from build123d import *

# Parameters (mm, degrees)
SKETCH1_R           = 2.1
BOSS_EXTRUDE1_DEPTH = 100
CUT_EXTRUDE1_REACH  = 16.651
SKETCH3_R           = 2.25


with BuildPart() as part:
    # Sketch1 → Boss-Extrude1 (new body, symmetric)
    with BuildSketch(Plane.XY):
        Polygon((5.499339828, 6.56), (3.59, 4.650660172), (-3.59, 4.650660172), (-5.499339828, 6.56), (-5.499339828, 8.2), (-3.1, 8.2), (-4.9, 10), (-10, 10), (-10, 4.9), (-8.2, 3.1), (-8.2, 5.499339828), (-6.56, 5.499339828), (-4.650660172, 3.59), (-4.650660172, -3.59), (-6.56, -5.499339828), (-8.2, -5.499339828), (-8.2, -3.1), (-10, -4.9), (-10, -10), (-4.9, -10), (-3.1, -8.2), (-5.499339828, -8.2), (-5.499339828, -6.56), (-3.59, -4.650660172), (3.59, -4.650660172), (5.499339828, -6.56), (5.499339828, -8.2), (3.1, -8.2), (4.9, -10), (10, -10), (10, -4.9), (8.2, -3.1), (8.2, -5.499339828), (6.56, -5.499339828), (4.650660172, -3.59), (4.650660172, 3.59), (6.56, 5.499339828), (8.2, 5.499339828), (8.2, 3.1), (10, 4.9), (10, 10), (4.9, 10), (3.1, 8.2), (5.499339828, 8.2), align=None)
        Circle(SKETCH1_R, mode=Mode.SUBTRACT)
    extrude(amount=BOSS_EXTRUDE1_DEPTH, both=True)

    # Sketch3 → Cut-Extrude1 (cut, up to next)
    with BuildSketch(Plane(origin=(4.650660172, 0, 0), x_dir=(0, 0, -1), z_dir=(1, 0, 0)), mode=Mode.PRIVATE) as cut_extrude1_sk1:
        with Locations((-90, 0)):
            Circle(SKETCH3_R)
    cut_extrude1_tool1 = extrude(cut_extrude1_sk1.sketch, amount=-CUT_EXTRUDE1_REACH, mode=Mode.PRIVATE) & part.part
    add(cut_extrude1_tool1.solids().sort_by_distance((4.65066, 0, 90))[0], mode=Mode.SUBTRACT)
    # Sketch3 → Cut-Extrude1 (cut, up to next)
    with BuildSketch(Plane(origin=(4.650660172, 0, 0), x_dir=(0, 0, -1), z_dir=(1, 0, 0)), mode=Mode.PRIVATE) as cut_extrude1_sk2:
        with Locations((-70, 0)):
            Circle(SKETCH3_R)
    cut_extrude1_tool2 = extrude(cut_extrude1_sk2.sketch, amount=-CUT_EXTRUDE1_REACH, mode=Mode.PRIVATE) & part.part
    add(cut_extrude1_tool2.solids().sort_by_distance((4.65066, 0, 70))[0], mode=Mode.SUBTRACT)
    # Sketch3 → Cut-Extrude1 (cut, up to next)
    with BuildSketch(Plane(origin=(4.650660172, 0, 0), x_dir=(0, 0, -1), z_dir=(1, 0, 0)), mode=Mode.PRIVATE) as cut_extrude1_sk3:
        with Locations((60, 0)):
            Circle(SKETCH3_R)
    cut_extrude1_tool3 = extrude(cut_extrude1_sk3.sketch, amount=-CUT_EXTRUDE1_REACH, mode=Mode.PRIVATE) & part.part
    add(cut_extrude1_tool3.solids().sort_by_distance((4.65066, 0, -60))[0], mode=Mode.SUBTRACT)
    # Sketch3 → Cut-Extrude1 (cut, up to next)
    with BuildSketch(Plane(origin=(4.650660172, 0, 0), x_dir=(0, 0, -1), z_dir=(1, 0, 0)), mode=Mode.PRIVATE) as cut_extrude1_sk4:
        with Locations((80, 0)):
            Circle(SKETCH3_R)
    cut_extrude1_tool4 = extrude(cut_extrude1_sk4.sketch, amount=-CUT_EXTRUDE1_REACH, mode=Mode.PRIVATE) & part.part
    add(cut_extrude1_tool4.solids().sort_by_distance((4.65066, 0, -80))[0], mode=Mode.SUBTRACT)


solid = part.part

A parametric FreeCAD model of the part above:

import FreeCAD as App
import Part
import Sketcher
Q = App.Units.Quantity

doc = App.newDocument("Part")
body = doc.addObject("PartDesign::Body", "Body")

# Sketch on XY plane
sketch1 = doc.addObject("Sketcher::SketchObject", "Sketch")
body.addObject(sketch1)
sketch1.AttachmentSupport = (doc.XY_Plane, [""])
sketch1.MapMode = "FlatFace"
sketch1.addGeometry([
    Part.LineSegment(App.Vector(5.5, 6.6, 0), App.Vector(3.6, 4.7, 0)),  # 0
    Part.LineSegment(App.Vector(3.6, 4.7, 0), App.Vector(-3.6, 4.7, 0)),  # 1
    Part.LineSegment(App.Vector(-3.6, 4.7, 0), App.Vector(-5.5, 6.6, 0)),  # 2
    Part.LineSegment(App.Vector(-5.5, 6.6, 0), App.Vector(-5.5, 8.2, 0)),  # 3
    Part.LineSegment(App.Vector(-5.5, 8.2, 0), App.Vector(-3.1, 8.2, 0)),  # 4
    Part.LineSegment(App.Vector(-3.1, 8.2, 0), App.Vector(-4.9, 10, 0)),  # 5
    Part.LineSegment(App.Vector(-4.9, 10, 0), App.Vector(-10, 10, 0)),  # 6
    Part.LineSegment(App.Vector(-10, 10, 0), App.Vector(-10, 4.9, 0)),  # 7
    Part.LineSegment(App.Vector(-10, 4.9, 0), App.Vector(-8.2, 3.1, 0)),  # 8
    Part.LineSegment(App.Vector(-8.2, 3.1, 0), App.Vector(-8.2, 5.5, 0)),  # 9
    Part.LineSegment(App.Vector(-8.2, 5.5, 0), App.Vector(-6.6, 5.5, 0)),  # 10
    Part.LineSegment(App.Vector(-6.6, 5.5, 0), App.Vector(-4.7, 3.6, 0)),  # 11
    Part.LineSegment(App.Vector(-4.7, 3.6, 0), App.Vector(-4.7, -3.6, 0)),  # 12
    Part.LineSegment(App.Vector(-4.7, -3.6, 0), App.Vector(-6.6, -5.5, 0)),  # 13
    Part.LineSegment(App.Vector(-6.6, -5.5, 0), App.Vector(-8.2, -5.5, 0)),  # 14
    Part.LineSegment(App.Vector(-8.2, -5.5, 0), App.Vector(-8.2, -3.1, 0)),  # 15
    Part.LineSegment(App.Vector(-8.2, -3.1, 0), App.Vector(-10, -4.9, 0)),  # 16
    Part.LineSegment(App.Vector(-10, -4.9, 0), App.Vector(-10, -10, 0)),  # 17
    Part.LineSegment(App.Vector(-10, -10, 0), App.Vector(-4.9, -10, 0)),  # 18
    Part.LineSegment(App.Vector(-4.9, -10, 0), App.Vector(-3.1, -8.2, 0)),  # 19
    Part.LineSegment(App.Vector(-3.1, -8.2, 0), App.Vector(-5.5, -8.2, 0)),  # 20
    Part.LineSegment(App.Vector(-5.5, -8.2, 0), App.Vector(-5.5, -6.6, 0)),  # 21
    Part.LineSegment(App.Vector(-5.5, -6.6, 0), App.Vector(-3.6, -4.7, 0)),  # 22
    Part.LineSegment(App.Vector(-3.6, -4.7, 0), App.Vector(3.6, -4.7, 0)),  # 23
    Part.LineSegment(App.Vector(3.6, -4.7, 0), App.Vector(5.5, -6.6, 0)),  # 24
    Part.LineSegment(App.Vector(5.5, -6.6, 0), App.Vector(5.5, -8.2, 0)),  # 25
    Part.LineSegment(App.Vector(5.5, -8.2, 0), App.Vector(3.1, -8.2, 0)),  # 26
    Part.LineSegment(App.Vector(3.1, -8.2, 0), App.Vector(4.9, -10, 0)),  # 27
    Part.LineSegment(App.Vector(4.9, -10, 0), App.Vector(10, -10, 0)),  # 28
    Part.LineSegment(App.Vector(10, -10, 0), App.Vector(10, -4.9, 0)),  # 29
    Part.LineSegment(App.Vector(10, -4.9, 0), App.Vector(8.2, -3.1, 0)),  # 30
    Part.LineSegment(App.Vector(8.2, -3.1, 0), App.Vector(8.2, -5.5, 0)),  # 31
    Part.LineSegment(App.Vector(8.2, -5.5, 0), App.Vector(6.6, -5.5, 0)),  # 32
    Part.LineSegment(App.Vector(6.6, -5.5, 0), App.Vector(4.7, -3.6, 0)),  # 33
    Part.LineSegment(App.Vector(4.7, -3.6, 0), App.Vector(4.7, 3.6, 0)),  # 34
    Part.LineSegment(App.Vector(4.7, 3.6, 0), App.Vector(6.6, 5.5, 0)),  # 35
    Part.LineSegment(App.Vector(6.6, 5.5, 0), App.Vector(8.2, 5.5, 0)),  # 36
    Part.LineSegment(App.Vector(8.2, 5.5, 0), App.Vector(8.2, 3.1, 0)),  # 37
    Part.LineSegment(App.Vector(8.2, 3.1, 0), App.Vector(10, 4.9, 0)),  # 38
    Part.LineSegment(App.Vector(10, 4.9, 0), App.Vector(10, 10, 0)),  # 39
    Part.LineSegment(App.Vector(10, 10, 0), App.Vector(4.9, 10, 0)),  # 40
    Part.LineSegment(App.Vector(4.9, 10, 0), App.Vector(3.1, 8.2, 0)),  # 41
    Part.LineSegment(App.Vector(3.1, 8.2, 0), App.Vector(5.5, 8.2, 0)),  # 42
    Part.LineSegment(App.Vector(5.5, 8.2, 0), App.Vector(5.5, 6.6, 0)),  # 43
    Part.Circle(App.Vector(0, 0, 0), App.Vector(0, 0, 1), 2.1),  # 44
], False)
sketch1.addConstraint([
    Sketcher.Constraint("Coincident", 0, 2, 1, 1),
    Sketcher.Constraint("Coincident", 1, 2, 2, 1),
    Sketcher.Constraint("Coincident", 2, 2, 3, 1),
    Sketcher.Constraint("Coincident", 3, 2, 4, 1),
    Sketcher.Constraint("Coincident", 4, 2, 5, 1),
    Sketcher.Constraint("Coincident", 5, 2, 6, 1),
    Sketcher.Constraint("Coincident", 6, 2, 7, 1),
    Sketcher.Constraint("Coincident", 7, 2, 8, 1),
    Sketcher.Constraint("Coincident", 8, 2, 9, 1),
    Sketcher.Constraint("Coincident", 9, 2, 10, 1),
    Sketcher.Constraint("Coincident", 10, 2, 11, 1),
    Sketcher.Constraint("Coincident", 11, 2, 12, 1),
    Sketcher.Constraint("Coincident", 12, 2, 13, 1),
    Sketcher.Constraint("Coincident", 13, 2, 14, 1),
    Sketcher.Constraint("Coincident", 14, 2, 15, 1),
    Sketcher.Constraint("Coincident", 15, 2, 16, 1),
    Sketcher.Constraint("Coincident", 16, 2, 17, 1),
    Sketcher.Constraint("Coincident", 17, 2, 18, 1),
    Sketcher.Constraint("Coincident", 18, 2, 19, 1),
    Sketcher.Constraint("Coincident", 19, 2, 20, 1),
    Sketcher.Constraint("Coincident", 20, 2, 21, 1),
    Sketcher.Constraint("Coincident", 21, 2, 22, 1),
    Sketcher.Constraint("Coincident", 22, 2, 23, 1),
    Sketcher.Constraint("Coincident", 23, 2, 24, 1),
    Sketcher.Constraint("Coincident", 24, 2, 25, 1),
    Sketcher.Constraint("Coincident", 25, 2, 26, 1),
    Sketcher.Constraint("Coincident", 26, 2, 27, 1),
    Sketcher.Constraint("Coincident", 27, 2, 28, 1),
    Sketcher.Constraint("Coincident", 28, 2, 29, 1),
    Sketcher.Constraint("Coincident", 29, 2, 30, 1),
    Sketcher.Constraint("Coincident", 30, 2, 31, 1),
    Sketcher.Constraint("Coincident", 31, 2, 32, 1),
    Sketcher.Constraint("Coincident", 32, 2, 33, 1),
    Sketcher.Constraint("Coincident", 33, 2, 34, 1),
    Sketcher.Constraint("Coincident", 34, 2, 35, 1),
    Sketcher.Constraint("Coincident", 35, 2, 36, 1),
    Sketcher.Constraint("Coincident", 36, 2, 37, 1),
    Sketcher.Constraint("Coincident", 37, 2, 38, 1),
    Sketcher.Constraint("Coincident", 38, 2, 39, 1),
    Sketcher.Constraint("Coincident", 39, 2, 40, 1),
    Sketcher.Constraint("Coincident", 40, 2, 41, 1),
    Sketcher.Constraint("Coincident", 41, 2, 42, 1),
    Sketcher.Constraint("Coincident", 42, 2, 43, 1),
    Sketcher.Constraint("Coincident", 43, 2, 0, 1),
    Sketcher.Constraint("Horizontal", 1),
    Sketcher.Constraint("Vertical", 3),
    Sketcher.Constraint("Horizontal", 4),
    Sketcher.Constraint("Horizontal", 6),
    Sketcher.Constraint("Vertical", 7),
    Sketcher.Constraint("Vertical", 9),
    Sketcher.Constraint("Horizontal", 10),
    Sketcher.Constraint("Vertical", 12),
    Sketcher.Constraint("Horizontal", 14),
    Sketcher.Constraint("Vertical", 15),
    Sketcher.Constraint("Vertical", 17),
    Sketcher.Constraint("Horizontal", 18),
    Sketcher.Constraint("Horizontal", 20),
    Sketcher.Constraint("Vertical", 21),
    Sketcher.Constraint("Horizontal", 23),
    Sketcher.Constraint("Vertical", 25),
    Sketcher.Constraint("Horizontal", 26),
    Sketcher.Constraint("Horizontal", 28),
    Sketcher.Constraint("Vertical", 29),
    Sketcher.Constraint("Vertical", 31),
    Sketcher.Constraint("Horizontal", 32),
    Sketcher.Constraint("Vertical", 34),
    Sketcher.Constraint("Horizontal", 36),
    Sketcher.Constraint("Vertical", 37),
    Sketcher.Constraint("Vertical", 39),
    Sketcher.Constraint("Horizontal", 40),
    Sketcher.Constraint("Horizontal", 42),
    Sketcher.Constraint("Vertical", 43),
    Sketcher.Constraint("Coincident", 44, 3, -1, 1),
    Sketcher.Constraint("Symmetric", 0, 2, 22, 2, -1, 1),
    Sketcher.Constraint("Symmetric", 2, 2, 24, 2, -1, 1),
    Sketcher.Constraint("Symmetric", 4, 2, 26, 2, -1, 1),
    Sketcher.Constraint("Symmetric", 5, 2, 27, 2, -1, 1),
    Sketcher.Constraint("Symmetric", 7, 2, 29, 2, -1, 1),
    Sketcher.Constraint("Symmetric", 8, 2, 30, 2, -1, 1),
    Sketcher.Constraint("Symmetric", 10, 2, 32, 2, -1, 1),
    Sketcher.Constraint("Symmetric", 11, 2, 33, 2, -1, 1),
    Sketcher.Constraint("Symmetric", 13, 2, 35, 2, -1, 1),
    Sketcher.Constraint("Symmetric", 15, 2, 37, 2, -1, 1),
    Sketcher.Constraint("Symmetric", 16, 2, 38, 2, -1, 1),
    Sketcher.Constraint("Symmetric", 18, 2, 40, 2, -1, 1),
    Sketcher.Constraint("Symmetric", 19, 2, 41, 2, -1, 1),
    Sketcher.Constraint("Symmetric", 21, 2, 43, 2, -1, 1),
    Sketcher.Constraint("Symmetric", 21, 2, 24, 2, -2),
    Sketcher.Constraint("Symmetric", 19, 2, 26, 2, -2),
    Sketcher.Constraint("Symmetric", 18, 2, 27, 2, -2),
    Sketcher.Constraint("Symmetric", 16, 2, 29, 2, -2),
    Sketcher.Constraint("Symmetric", 15, 2, 30, 2, -2),
    Sketcher.Constraint("Symmetric", 13, 2, 32, 2, -2),
    Sketcher.Constraint("Perpendicular", 0, 2),
    Sketcher.Constraint("Parallel", 2, 5),
    Sketcher.Constraint("Parallel", 5, 8),
    Sketcher.Constraint("Parallel", 8, 11),
    Sketcher.Constraint("Perpendicular", 11, 13),
    Sketcher.Constraint("Parallel", 13, 16),
    Sketcher.Constraint("Perpendicular", 22, 24),
    Sketcher.Constraint("Perpendicular", 33, 35),
    Sketcher.Constraint("Equal", 36, 3),
    Sketcher.Constraint("Equal", 40, 7),
    Sketcher.Constraint("Equal", 42, 9),
    Sketcher.Constraint("Equal", 23, 12),
    Sketcher.Constraint("Equal", 5, 8),
    Sketcher.Constraint("Equal", 2, 11),
    Sketcher.Constraint("Diameter", 44, Q("4.2 mm")),
    Sketcher.Constraint("DistanceX", 6, 2, 6, 1, Q("5.1 mm")),
    Sketcher.Constraint("DistanceY", -1, 1, 5, 2, Q("10 mm")),
    Sketcher.Constraint("DistanceY", 16, 2, 8, 2, Q("8 mm")),
    Sketcher.Constraint("DistanceX", 1, 2, 1, 1, Q("7.18 mm")),
    Sketcher.Constraint("DistanceX", 10, 1, 10, 2, Q("1.64 mm")),
    Sketcher.Constraint("DistanceX", 4, 1, 4, 2, Q("2.39934 mm")),
])
pad1 = doc.addObject("PartDesign::Pad", "Pad")
body.addObject(pad1)
pad1.Profile = sketch1
pad1.Length = 200
pad1.Midplane = True

# Sketch on YZ plane
sketch2 = doc.addObject("Sketcher::SketchObject", "Sketch001")
body.addObject(sketch2)
sketch2.AttachmentSupport = (doc.YZ_Plane, [""])
sketch2.MapMode = "FlatFace"
sketch2.AttachmentOffset = App.Placement(App.Vector(0, 0, 4.65066), App.Rotation())
sketch2.addGeometry(Part.Circle(App.Vector(0, 90, 0), App.Vector(0, 0, 1), 2.2), False)
sketch2.addConstraint([
    Sketcher.Constraint("PointOnObject", 0, 3, -2),
    Sketcher.Constraint("Diameter", 0, Q("4.5 mm")),
    Sketcher.Constraint("DistanceY", -1, 1, 0, 3, Q("90 mm")),
])
pocket1 = doc.addObject("PartDesign::Pocket", "Pocket")
body.addObject(pocket1)
pocket1.Profile = sketch2
pocket1.Length = 9.30132

# Sketch on YZ plane
sketch3 = doc.addObject("Sketcher::SketchObject", "Sketch002")
body.addObject(sketch3)
sketch3.AttachmentSupport = (doc.YZ_Plane, [""])
sketch3.MapMode = "FlatFace"
sketch3.AttachmentOffset = App.Placement(App.Vector(0, 0, 4.65066), App.Rotation())
sketch3.addGeometry(Part.Circle(App.Vector(0, 70, 0), App.Vector(0, 0, 1), 2.2), False)
sketch3.addConstraint([
    Sketcher.Constraint("PointOnObject", 0, 3, -2),
    Sketcher.Constraint("Diameter", 0, Q("4.5 mm")),
    Sketcher.Constraint("DistanceY", -1, 1, 0, 3, Q("70 mm")),
])
pocket2 = doc.addObject("PartDesign::Pocket", "Pocket001")
body.addObject(pocket2)
pocket2.Profile = sketch3
pocket2.Length = 9.30132

# Sketch on YZ plane
sketch4 = doc.addObject("Sketcher::SketchObject", "Sketch003")
body.addObject(sketch4)
sketch4.AttachmentSupport = (doc.YZ_Plane, [""])
sketch4.MapMode = "FlatFace"
sketch4.AttachmentOffset = App.Placement(App.Vector(0, 0, 4.65066), App.Rotation())
sketch4.addGeometry(Part.Circle(App.Vector(0, -60, 0), App.Vector(0, 0, 1), 2.2), False)
sketch4.addConstraint([
    Sketcher.Constraint("PointOnObject", 0, 3, -2),
    Sketcher.Constraint("Diameter", 0, Q("4.5 mm")),
    Sketcher.Constraint("DistanceY", 0, 3, -1, 1, Q("60 mm")),
])
pocket3 = doc.addObject("PartDesign::Pocket", "Pocket002")
body.addObject(pocket3)
pocket3.Profile = sketch4
pocket3.Length = 9.30132

# Sketch on YZ plane
sketch5 = doc.addObject("Sketcher::SketchObject", "Sketch004")
body.addObject(sketch5)
sketch5.AttachmentSupport = (doc.YZ_Plane, [""])
sketch5.MapMode = "FlatFace"
sketch5.AttachmentOffset = App.Placement(App.Vector(0, 0, 4.65066), App.Rotation())
sketch5.addGeometry(Part.Circle(App.Vector(0, -80, 0), App.Vector(0, 0, 1), 2.2), False)
sketch5.addConstraint([
    Sketcher.Constraint("PointOnObject", 0, 3, -2),
    Sketcher.Constraint("Diameter", 0, Q("4.5 mm")),
    Sketcher.Constraint("DistanceY", 0, 3, -1, 1, Q("80 mm")),
])
pocket4 = doc.addObject("PartDesign::Pocket", "Pocket003")
body.addObject(pocket4)
pocket4.Profile = sketch5
pocket4.Length = 9.30132

doc.recompute()
